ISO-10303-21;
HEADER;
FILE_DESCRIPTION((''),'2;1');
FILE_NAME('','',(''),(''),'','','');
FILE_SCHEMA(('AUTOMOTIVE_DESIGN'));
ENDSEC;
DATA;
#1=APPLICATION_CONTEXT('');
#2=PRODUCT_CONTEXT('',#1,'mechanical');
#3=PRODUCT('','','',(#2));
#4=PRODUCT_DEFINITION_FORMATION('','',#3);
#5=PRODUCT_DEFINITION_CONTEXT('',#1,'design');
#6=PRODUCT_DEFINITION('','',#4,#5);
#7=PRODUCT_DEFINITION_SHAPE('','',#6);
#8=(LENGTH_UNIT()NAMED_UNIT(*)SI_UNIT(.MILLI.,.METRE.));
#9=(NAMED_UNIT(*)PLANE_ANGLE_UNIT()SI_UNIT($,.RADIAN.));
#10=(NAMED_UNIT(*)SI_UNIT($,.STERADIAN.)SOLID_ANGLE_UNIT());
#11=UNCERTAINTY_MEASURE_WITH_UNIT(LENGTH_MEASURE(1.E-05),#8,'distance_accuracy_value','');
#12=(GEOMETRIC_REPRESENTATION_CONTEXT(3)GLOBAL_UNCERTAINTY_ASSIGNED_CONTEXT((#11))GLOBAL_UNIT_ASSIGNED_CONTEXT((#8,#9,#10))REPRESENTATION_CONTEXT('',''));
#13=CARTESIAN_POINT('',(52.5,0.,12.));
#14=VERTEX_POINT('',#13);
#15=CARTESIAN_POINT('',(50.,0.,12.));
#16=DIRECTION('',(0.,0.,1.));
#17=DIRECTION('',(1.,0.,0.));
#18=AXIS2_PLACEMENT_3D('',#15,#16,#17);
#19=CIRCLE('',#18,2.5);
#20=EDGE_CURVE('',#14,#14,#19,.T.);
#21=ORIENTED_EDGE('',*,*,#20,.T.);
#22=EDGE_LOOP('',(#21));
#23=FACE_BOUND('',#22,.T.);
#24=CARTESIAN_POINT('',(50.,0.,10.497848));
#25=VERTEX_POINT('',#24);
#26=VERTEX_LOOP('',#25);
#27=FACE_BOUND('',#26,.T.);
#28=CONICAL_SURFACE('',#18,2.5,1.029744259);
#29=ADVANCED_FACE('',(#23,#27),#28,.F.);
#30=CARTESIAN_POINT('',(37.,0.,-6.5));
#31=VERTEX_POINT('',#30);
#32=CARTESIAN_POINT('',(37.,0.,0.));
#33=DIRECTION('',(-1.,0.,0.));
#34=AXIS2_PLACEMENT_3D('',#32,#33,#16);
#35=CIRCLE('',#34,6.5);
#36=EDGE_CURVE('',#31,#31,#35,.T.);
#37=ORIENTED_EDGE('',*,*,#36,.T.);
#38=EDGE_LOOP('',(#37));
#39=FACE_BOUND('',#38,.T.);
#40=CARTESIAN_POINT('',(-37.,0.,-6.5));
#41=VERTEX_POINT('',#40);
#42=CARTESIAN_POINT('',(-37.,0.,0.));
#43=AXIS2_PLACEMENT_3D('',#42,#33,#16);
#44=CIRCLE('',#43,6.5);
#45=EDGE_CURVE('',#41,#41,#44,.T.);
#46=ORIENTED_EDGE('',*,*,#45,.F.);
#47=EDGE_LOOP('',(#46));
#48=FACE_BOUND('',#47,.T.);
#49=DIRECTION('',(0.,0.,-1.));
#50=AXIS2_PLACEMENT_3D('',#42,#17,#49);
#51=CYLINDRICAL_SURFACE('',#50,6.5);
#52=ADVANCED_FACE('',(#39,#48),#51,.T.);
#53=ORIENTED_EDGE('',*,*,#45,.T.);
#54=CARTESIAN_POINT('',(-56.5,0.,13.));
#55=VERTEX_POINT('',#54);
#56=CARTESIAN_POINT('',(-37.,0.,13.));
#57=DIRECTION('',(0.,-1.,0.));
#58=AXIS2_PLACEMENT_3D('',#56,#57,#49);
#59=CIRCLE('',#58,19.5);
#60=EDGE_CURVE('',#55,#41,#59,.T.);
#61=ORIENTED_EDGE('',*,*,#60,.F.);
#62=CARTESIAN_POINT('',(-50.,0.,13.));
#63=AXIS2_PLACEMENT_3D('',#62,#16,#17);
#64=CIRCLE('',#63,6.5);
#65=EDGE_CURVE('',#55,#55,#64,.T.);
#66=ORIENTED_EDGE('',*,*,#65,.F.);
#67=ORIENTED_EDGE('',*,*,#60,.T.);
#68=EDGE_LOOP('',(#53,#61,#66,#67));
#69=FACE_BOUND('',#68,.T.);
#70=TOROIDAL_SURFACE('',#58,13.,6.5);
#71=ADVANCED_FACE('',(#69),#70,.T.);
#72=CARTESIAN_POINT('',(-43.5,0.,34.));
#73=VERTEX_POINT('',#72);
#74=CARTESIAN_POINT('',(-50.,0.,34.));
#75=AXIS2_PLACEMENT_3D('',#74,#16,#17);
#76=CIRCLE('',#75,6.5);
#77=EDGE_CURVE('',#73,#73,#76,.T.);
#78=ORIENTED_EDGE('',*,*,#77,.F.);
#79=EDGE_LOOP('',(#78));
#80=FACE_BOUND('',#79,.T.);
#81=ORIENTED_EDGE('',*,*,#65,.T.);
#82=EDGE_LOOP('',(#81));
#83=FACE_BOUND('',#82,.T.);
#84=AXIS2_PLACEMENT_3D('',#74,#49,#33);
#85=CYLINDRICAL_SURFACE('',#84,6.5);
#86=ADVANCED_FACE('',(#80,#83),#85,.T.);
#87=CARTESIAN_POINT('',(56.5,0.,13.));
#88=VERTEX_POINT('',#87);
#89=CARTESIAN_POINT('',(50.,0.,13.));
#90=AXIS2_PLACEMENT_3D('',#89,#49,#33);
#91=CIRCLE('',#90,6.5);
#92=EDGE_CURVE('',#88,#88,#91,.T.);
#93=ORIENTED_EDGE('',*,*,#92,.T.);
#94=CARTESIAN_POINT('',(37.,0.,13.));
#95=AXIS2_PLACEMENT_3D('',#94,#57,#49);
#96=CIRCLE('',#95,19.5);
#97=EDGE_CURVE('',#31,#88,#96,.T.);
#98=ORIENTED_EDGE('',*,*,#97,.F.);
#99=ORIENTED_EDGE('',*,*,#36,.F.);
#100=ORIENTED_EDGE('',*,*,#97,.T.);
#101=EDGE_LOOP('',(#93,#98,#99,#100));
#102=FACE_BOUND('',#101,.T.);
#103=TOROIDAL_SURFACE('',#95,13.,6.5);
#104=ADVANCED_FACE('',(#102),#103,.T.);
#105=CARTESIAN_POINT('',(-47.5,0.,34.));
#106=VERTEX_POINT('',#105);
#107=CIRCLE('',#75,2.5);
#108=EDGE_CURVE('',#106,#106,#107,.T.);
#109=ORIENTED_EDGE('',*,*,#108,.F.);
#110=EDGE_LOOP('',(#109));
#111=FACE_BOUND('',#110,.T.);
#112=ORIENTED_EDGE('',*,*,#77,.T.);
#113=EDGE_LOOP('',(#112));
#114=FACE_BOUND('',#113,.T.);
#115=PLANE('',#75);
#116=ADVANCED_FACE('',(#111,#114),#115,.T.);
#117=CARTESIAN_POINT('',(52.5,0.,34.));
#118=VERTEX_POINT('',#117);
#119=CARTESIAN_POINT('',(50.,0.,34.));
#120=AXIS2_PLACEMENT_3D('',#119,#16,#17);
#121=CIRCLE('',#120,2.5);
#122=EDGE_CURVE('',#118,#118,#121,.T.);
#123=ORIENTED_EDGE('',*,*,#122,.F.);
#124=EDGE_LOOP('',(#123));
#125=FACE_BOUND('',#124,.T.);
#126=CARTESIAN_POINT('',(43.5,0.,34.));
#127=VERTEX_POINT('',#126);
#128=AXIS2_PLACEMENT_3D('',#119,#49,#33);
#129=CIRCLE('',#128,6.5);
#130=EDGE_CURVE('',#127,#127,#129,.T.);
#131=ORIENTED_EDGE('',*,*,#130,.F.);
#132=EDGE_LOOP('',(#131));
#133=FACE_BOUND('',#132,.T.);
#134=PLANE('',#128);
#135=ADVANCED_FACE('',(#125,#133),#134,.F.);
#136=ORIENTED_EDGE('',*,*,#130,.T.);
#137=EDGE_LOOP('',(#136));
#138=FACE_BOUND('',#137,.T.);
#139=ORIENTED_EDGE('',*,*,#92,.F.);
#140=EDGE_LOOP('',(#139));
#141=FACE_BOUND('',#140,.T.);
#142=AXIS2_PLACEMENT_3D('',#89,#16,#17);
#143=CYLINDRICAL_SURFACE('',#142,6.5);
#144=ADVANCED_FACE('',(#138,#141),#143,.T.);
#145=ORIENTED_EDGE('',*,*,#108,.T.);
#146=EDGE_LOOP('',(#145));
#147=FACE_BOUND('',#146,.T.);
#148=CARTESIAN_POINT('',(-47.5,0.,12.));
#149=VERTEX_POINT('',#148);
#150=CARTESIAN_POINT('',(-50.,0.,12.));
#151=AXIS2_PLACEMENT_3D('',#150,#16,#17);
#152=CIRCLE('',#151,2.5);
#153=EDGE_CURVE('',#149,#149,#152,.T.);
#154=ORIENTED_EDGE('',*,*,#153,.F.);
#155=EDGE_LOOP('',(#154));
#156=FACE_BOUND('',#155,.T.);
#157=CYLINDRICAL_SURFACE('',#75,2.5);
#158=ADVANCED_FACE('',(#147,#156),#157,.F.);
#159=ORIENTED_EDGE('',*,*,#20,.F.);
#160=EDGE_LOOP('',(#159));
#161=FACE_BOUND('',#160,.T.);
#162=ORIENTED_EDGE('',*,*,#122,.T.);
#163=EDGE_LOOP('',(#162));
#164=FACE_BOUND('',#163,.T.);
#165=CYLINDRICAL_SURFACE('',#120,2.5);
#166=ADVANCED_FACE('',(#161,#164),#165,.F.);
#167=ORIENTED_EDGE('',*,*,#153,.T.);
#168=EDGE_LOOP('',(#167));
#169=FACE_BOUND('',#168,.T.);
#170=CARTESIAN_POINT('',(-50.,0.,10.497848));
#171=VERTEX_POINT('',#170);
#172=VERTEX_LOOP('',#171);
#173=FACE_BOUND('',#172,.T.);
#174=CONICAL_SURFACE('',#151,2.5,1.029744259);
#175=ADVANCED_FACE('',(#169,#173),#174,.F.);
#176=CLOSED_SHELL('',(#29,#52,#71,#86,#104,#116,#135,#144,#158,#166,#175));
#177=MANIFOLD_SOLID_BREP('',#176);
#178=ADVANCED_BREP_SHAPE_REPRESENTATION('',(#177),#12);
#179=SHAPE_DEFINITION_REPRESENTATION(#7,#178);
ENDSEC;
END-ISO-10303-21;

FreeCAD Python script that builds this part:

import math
import FreeCAD as App
import Part
import Sketcher
from FreeCAD import Vector

doc = App.newDocument("Part")
body = doc.addObject("PartDesign::Body", "Body")

# Sketch on XY plane
sketch1 = body.newObject("Sketcher::SketchObject", "Sketch")
sketch1.AttachmentSupport = (doc.getObject("XY_Plane"), [""])
sketch1.MapMode = "FlatFace"
sketch1.AttachmentOffset = App.Placement(Vector(0, 0, 34), App.Rotation())
sketch1.addGeometry(Part.Circle(Vector(-50, 0, 0), Vector(0, 0, 1), 6), False)
sketch1.addConstraint([
    Sketcher.Constraint("PointOnObject", 0, 3, -1),
    Sketcher.Constraint("Diameter", 0, 13.0),
    Sketcher.Constraint("DistanceX", 0, 3, -1, 1, 50.0),
])

# Sketch on XZ plane
sketch2 = body.newObject("Sketcher::SketchObject", "Sketch001")
sketch2.AttachmentSupport = (doc.getObject("XZ_Plane"), [""])
sketch2.MapMode = "FlatFace"
sketch2.addGeometry([
    Part.LineSegment(Vector(-50, 34, 0), Vector(-50, 13, 0)),  # 0
    Part.ArcOfCircle(Part.Circle(Vector(-37, 13, 0), Vector(0, 0, 1), 13), math.radians(-180), math.radians(-90)),  # 1
    Part.LineSegment(Vector(-37, 0, 0), Vector(37, 0, 0)),  # 2
    Part.ArcOfCircle(Part.Circle(Vector(37, 13, 0), Vector(0, 0, 1), 13), math.radians(-90), math.radians(0)),  # 3
    Part.LineSegment(Vector(50, 13, 0), Vector(50, 34, 0)),  # 4
], False)
sketch2.addConstraint([
    Sketcher.Constraint("Tangent", 0, 2, 1, 1),
    Sketcher.Constraint("Tangent", 1, 2, 2, 1),
    Sketcher.Constraint("Tangent", 2, 2, 3, 1),
    Sketcher.Constraint("Tangent", 3, 2, 4, 1),
    Sketcher.Constraint("Vertical", 0),
    Sketcher.Constraint("Horizontal", 2),
    Sketcher.Constraint("Vertical", 4),
    Sketcher.Constraint("Equal", 1, 3),
    Sketcher.Constraint("Symmetric", 1, 2, 2, 2, -1, 1),
    Sketcher.Constraint("Horizontal", 0, 1, 4, 2),
    Sketcher.Constraint("Radius", 1, 13.0),
    Sketcher.Constraint("DistanceX", 2, 1, 2, 2, 74.0),
    Sketcher.Constraint("DistanceY", 0, 2, 0, 1, 21.0),
])
doc.recompute()

additivepipe = body.newObject("PartDesign::AdditivePipe", "AdditivePipe")
additivepipe.Profile = sketch1
additivepipe.Spine = (sketch2, ["Edge1", "Edge2", "Edge3", "Edge4", "Edge5"])

# Sketch on XY plane
sketch3 = body.newObject("Sketcher::SketchObject", "Sketch002")
sketch3.AttachmentSupport = (doc.getObject("XY_Plane"), [""])
sketch3.MapMode = "FlatFace"
sketch3.AttachmentOffset = App.Placement(Vector(0, 0, 34), App.Rotation())
sketch3.addGeometry([
    Part.Circle(Vector(-50, 0, 0), Vector(0, 0, 1), 2.5),
    Part.Circle(Vector(50, 0, 0), Vector(0, 0, 1), 2.5),
], False)
sketch3.addConstraint([
    Sketcher.Constraint("Equal", 0, 1),
    Sketcher.Constraint("Symmetric", 0, 3, 1, 3, -1, 1),
    Sketcher.Constraint("PointOnObject", 0, 3, -1),
    Sketcher.Constraint("Diameter", 0, 5.0),
    Sketcher.Constraint("DistanceX", 0, 3, -1, 1, 50.0),
])
doc.recompute()
hole = body.newObject("PartDesign::Hole", "Hole")
hole.Profile = sketch3
hole.ThreadType = "None"
hole.Diameter = 5
hole.DepthType = "Dimension"
hole.Depth = 22
hole.DrillPoint = "Angled"
hole.DrillPointAngle = 118

doc.recompute()
